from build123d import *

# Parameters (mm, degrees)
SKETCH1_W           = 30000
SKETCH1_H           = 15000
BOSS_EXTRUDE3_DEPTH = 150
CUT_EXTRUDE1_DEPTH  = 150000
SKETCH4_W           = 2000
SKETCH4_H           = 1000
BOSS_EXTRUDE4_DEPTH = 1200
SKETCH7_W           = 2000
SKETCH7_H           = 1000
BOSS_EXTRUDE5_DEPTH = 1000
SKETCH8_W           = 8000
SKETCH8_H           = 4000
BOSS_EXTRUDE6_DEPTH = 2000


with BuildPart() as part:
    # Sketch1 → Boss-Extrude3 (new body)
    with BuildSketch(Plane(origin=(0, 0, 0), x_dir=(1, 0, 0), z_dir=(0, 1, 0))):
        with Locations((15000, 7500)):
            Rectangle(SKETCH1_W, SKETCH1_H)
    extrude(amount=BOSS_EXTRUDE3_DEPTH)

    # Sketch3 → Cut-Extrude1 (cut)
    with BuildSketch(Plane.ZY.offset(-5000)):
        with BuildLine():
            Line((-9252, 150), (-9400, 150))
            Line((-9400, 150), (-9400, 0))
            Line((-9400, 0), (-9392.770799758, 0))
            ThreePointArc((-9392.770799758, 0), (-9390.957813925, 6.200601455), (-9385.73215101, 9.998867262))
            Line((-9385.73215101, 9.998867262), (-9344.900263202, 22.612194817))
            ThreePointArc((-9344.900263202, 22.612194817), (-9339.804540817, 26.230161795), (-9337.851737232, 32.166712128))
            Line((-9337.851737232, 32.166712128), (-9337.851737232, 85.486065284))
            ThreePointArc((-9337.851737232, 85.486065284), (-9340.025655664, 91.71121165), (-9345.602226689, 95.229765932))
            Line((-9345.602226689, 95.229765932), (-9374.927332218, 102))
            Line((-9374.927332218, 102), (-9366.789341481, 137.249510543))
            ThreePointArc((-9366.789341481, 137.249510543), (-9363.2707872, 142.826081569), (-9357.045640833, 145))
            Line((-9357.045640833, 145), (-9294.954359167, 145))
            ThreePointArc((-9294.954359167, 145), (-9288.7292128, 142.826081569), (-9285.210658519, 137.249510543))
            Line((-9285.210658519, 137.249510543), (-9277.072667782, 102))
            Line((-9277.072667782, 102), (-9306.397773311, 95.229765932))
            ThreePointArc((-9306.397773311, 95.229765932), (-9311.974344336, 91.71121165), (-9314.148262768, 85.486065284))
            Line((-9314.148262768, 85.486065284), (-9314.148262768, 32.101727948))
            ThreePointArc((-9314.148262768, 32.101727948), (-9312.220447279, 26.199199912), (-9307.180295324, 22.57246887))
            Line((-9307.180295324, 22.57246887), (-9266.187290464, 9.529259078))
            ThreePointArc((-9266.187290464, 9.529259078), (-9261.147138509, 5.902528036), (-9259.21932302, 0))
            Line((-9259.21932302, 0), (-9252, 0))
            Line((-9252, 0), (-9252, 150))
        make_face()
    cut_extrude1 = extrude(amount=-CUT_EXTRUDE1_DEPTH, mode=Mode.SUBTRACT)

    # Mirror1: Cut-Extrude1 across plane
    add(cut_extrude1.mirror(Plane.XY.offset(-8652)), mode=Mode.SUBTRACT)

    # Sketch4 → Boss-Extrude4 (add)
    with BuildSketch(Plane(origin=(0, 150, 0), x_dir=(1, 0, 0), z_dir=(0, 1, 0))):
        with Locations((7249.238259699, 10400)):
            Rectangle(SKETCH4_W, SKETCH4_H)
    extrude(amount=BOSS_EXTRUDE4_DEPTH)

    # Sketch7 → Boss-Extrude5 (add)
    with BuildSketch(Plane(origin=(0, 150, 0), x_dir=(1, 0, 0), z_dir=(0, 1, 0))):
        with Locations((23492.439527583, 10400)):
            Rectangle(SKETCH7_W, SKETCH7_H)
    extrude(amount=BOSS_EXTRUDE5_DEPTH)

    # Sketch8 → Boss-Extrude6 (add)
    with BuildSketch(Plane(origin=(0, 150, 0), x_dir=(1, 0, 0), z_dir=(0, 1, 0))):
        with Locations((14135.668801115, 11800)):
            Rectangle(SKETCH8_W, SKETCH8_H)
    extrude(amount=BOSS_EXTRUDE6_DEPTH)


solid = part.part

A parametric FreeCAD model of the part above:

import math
import FreeCAD as App
import Part
import Sketcher

V = App.Vector
Q = App.Units.Quantity


def add_polygon(sketch, points):
    """Adds a closed chain of lines whose ends are joined by coincident constraints."""
    first, n = sketch.GeometryCount, len(points)
    for a, b in zip(points, points[1:] + points[:1]):
        sketch.addGeometry(Part.LineSegment(App.Vector(*a, 0), App.Vector(*b, 0)), False)
    for i in range(n):
        sketch.addConstraint(Sketcher.Constraint("Coincident", first + i, 2, first + (i + 1) % n, 1))

doc = App.newDocument("Part")
body = doc.addObject("PartDesign::Body", "Body")

# Sketch on XZ plane
sketch1 = body.newObject("Sketcher::SketchObject", "Sketch")
sketch1.AttachmentSupport = (doc.getObject("XZ_Plane"), [""])
sketch1.MapMode = "FlatFace"
add_polygon(sketch1, [(0, -15000), (0, 0), (30000, 0), (30000, -15000)])  # lines 0-3
sketch1.addConstraint([
    Sketcher.Constraint("Vertical", 0),
    Sketcher.Constraint("Horizontal", 1),
    Sketcher.Constraint("Vertical", 2),
    Sketcher.Constraint("Horizontal", 3),
    Sketcher.Constraint("Coincident", 0, 2, -1, 1),
    Sketcher.Constraint("DistanceX", 1, 1, 1, 2, Q("30000 mm")),
    Sketcher.Constraint("DistanceY", 0, 1, 0, 2, Q("15000 mm")),
])
pad1 = body.newObject("PartDesign::Pad", "Pad")
pad1.Profile = sketch1
pad1.Length = 150
pad1.Reversed = True

# Sketch on YZ plane
sketch2 = body.newObject("Sketcher::SketchObject", "Sketch001")
sketch2.AttachmentSupport = (doc.getObject("YZ_Plane"), [""])
sketch2.MapMode = "FlatFace"
sketch2.AttachmentOffset = App.Placement(V(0, 0, 5000), App.Rotation())
sketch2.addGeometry([
    Part.LineSegment(V(150, -9252, 0), V(150, -9400, 0)),  # 0
    Part.LineSegment(V(150, -9400, 0), V(0, -9400, 0)),  # 1
    Part.LineSegment(V(0, -9400, 0), V(0, -9392.7708, 0)),  # 2
    Part.ArcOfCircle(Part.Circle(V(0.44435, -9382.780677, 0), V(0, 0, 1), 10), math.radians(-92.546776), math.radians(-17.166377)),  # 3
    Part.LineSegment(V(9.998867, -9385.732151, 0), V(22.612195, -9344.900263, 0)),  # 4
    Part.ArcOfCircle(Part.Circle(V(32.166712, -9347.851737, 0), V(0, 0, 1), 10), math.radians(90), math.radians(162.833623)),  # 5
    Part.LineSegment(V(32.166712, -9337.851737, 0), V(85.486065, -9337.851737, 0)),  # 6
    Part.ArcOfCircle(Part.Circle(V(85.486065, -9347.851737, 0), V(0, 0, 1), 10), math.radians(13), math.radians(90)),  # 7
    Part.LineSegment(V(95.229766, -9345.602227, 0), V(102, -9374.927332, 0)),  # 8
    Part.LineSegment(V(102, -9374.927332, 0), V(137.249511, -9366.789341, 0)),  # 9
    Part.ArcOfCircle(Part.Circle(V(135, -9357.045641, 0), V(0, 0, 1), 10), math.radians(-77), math.radians(0)),  # 10
    Part.LineSegment(V(145, -9357.045641, 0), V(145, -9294.954359, 0)),  # 11
    Part.ArcOfCircle(Part.Circle(V(135, -9294.954359, 0), V(0, 0, 1), 10), math.radians(0), math.radians(77)),  # 12
    Part.LineSegment(V(137.249511, -9285.210659, 0), V(102, -9277.072668, 0)),  # 13
    Part.LineSegment(V(102, -9277.072668, 0), V(95.229766, -9306.397773, 0)),  # 14
    Part.ArcOfCircle(Part.Circle(V(85.486065, -9304.148263, 0), V(0, 0, 1), 10), math.radians(-90), math.radians(-13)),  # 15
    Part.LineSegment(V(85.486065, -9314.148263, 0), V(32.101728, -9314.148263, 0)),  # 16
    Part.ArcOfCircle(Part.Circle(V(32.101728, -9304.148263, 0), V(0, 0, 1), 10), math.radians(-162.3499), math.radians(-90)),  # 17
    Part.LineSegment(V(22.572469, -9307.180295, 0), V(9.529259, -9266.18729, 0)),  # 18
    Part.ArcOfCircle(Part.Circle(V(0, -9269.219323, 0), V(0, 0, 1), 10), math.radians(17.6501), math.radians(90)),  # 19
    Part.LineSegment(V(0, -9259.219323, 0), V(0, -9252, 0)),  # 20
    Part.LineSegment(V(0, -9252, 0), V(150, -9252, 0)),  # 21
], False)
sketch2.addConstraint([
    Sketcher.Constraint("Coincident", 0, 2, 1, 1),
    Sketcher.Constraint("Coincident", 1, 2, 2, 1),
    Sketcher.Constraint("Coincident", 2, 2, 3, 1),
    Sketcher.Constraint("Tangent", 3, 2, 4, 1),
    Sketcher.Constraint("Tangent", 4, 2, 5, 2),
    Sketcher.Constraint("Tangent", 5, 1, 6, 1),
    Sketcher.Constraint("Tangent", 6, 2, 7, 2),
    Sketcher.Constraint("Tangent", 7, 1, 8, 1),
    Sketcher.Constraint("Coincident", 8, 2, 9, 1),
    Sketcher.Constraint("Tangent", 9, 2, 10, 1),
    Sketcher.Constraint("Tangent", 10, 2, 11, 1),
    Sketcher.Constraint("Tangent", 11, 2, 12, 1),
    Sketcher.Constraint("Tangent", 12, 2, 13, 1),
    Sketcher.Constraint("Coincident", 13, 2, 14, 1),
    Sketcher.Constraint("Tangent", 14, 2, 15, 2),
    Sketcher.Constraint("Tangent", 15, 1, 16, 1),
    Sketcher.Constraint("Tangent", 16, 2, 17, 2),
    Sketcher.Constraint("Tangent", 17, 1, 18, 1),
    Sketcher.Constraint("Tangent", 18, 2, 19, 1),
    Sketcher.Constraint("Coincident", 19, 2, 20, 1),
    Sketcher.Constraint("Coincident", 20, 2, 21, 1),
    Sketcher.Constraint("Coincident", 21, 2, 0, 1),
    Sketcher.Constraint("Vertical", 0),
    Sketcher.Constraint("Horizontal", 1),
    Sketcher.Constraint("Vertical", 2),
    Sketcher.Constraint("Horizontal", 6),
    Sketcher.Constraint("Vertical", 11),
    Sketcher.Constraint("Horizontal", 16),
    Sketcher.Constraint("Vertical", 20),
    Sketcher.Constraint("Horizontal", 21),
    Sketcher.Constraint("Equal", 3, 5),
    Sketcher.Constraint("Equal", 5, 7),
    Sketcher.Constraint("Equal", 7, 10),
    Sketcher.Constraint("Equal", 10, 12),
    Sketcher.Constraint("Equal", 12, 15),
    Sketcher.Constraint("Equal", 15, 17),
    Sketcher.Constraint("Equal", 17, 19),
    Sketcher.Constraint("PointOnObject", 19, 3, -2),
    Sketcher.Constraint("PointOnObject", 1, 2, -2),
    Sketcher.Constraint("PointOnObject", 19, 2, -2),
    Sketcher.Constraint("Perpendicular", 8, 9),
    Sketcher.Constraint("Perpendicular", 13, 14),
    Sketcher.Constraint("Vertical", 7, 3, 15, 3),
    Sketcher.Constraint("Vertical", 9, 2, 12, 2),
    Sketcher.Constraint("Vertical", 8, 2, 13, 2),
    Sketcher.Constraint("Radius", 3, Q("10 mm")),
    Sketcher.Constraint("DistanceX", 1, 2, 1, 1, Q("150 mm")),
    Sketcher.Constraint("DistanceY", 0, 2, 0, 1, Q("148 mm")),
    Sketcher.Constraint("Angle", 8, Q("-77 deg")),
    Sketcher.Constraint("DistanceX", -1, 1, 10, 3, Q("135 mm")),
    Sketcher.Constraint("DistanceY", 0, 2, -1, 1, Q("9400 mm")),
    Sketcher.Constraint("DistanceX", -1, 1, 8, 2, Q("102 mm")),
    Sketcher.Constraint("DistanceY", 2, 1, 2, 2, Q("7.2292 mm")),
    Sketcher.Constraint("DistanceY", 4, 2, 17, 3, Q("40.752 mm")),
    Sketcher.Constraint("DistanceY", 11, 1, 11, 2, Q("62.091282 mm")),
    Sketcher.Constraint("DistanceX", 3, 2, 7, 3, Q("75.487198 mm")),
    Sketcher.Constraint("Distance", 4, Q("42.735689 mm")),
    Sketcher.Constraint("Distance", 18, Q("43.01804 mm")),
    Sketcher.Constraint("DistanceX", 6, 1, 6, 2, Q("53.319353 mm")),
    Sketcher.Constraint("DistanceX", 16, 2, 16, 1, Q("53.384337 mm")),
])
pocket1 = body.newObject("PartDesign::Pocket", "Pocket")
pocket1.Profile = sketch2
pocket1.Length = 150000
pocket1.Reversed = True
doc.recompute()

datumplane = body.newObject("PartDesign::Plane", "DatumPlane")
datumplane.AttachmentSupport = (doc.getObject("XY_Plane"), [""])
datumplane.MapMode = "FlatFace"
datumplane.AttachmentOffset = App.Placement(V(0, 0, -8652), App.Rotation())
mirrored = body.newObject("PartDesign::Mirrored", "Mirrored")
mirrored.Originals = [pocket1]
mirrored.MirrorPlane = (datumplane, [""])
body.Tip = mirrored

# Sketch on XZ plane
sketch3 = body.newObject("Sketcher::SketchObject", "Sketch002")
sketch3.AttachmentSupport = (doc.getObject("XZ_Plane"), [""])
sketch3.MapMode = "FlatFace"
sketch3.AttachmentOffset = App.Placement(V(0, 0, -150), App.Rotation())
add_polygon(sketch3, [(6249.23826, -10900), (6249.23826, -9900), (8249.23826, -9900), (8249.23826, -10900)])  # lines 0-3
sketch3.addConstraint([
    Sketcher.Constraint("Vertical", 0),
    Sketcher.Constraint("Horizontal", 1),
    Sketcher.Constraint("Vertical", 2),
    Sketcher.Constraint("Horizontal", 3),
    Sketcher.Constraint("DistanceX", 1, 1, 1, 2, Q("2000 mm")),
    Sketcher.Constraint("DistanceY", 0, 1, 0, 2, Q("1000 mm")),
    Sketcher.Constraint("DistanceY", 0, 2, -1, 1, Q("9900 mm")),
    Sketcher.Constraint("DistanceX", -1, 1, 0, 2, Q("6249.23826 mm")),
])
pad2 = body.newObject("PartDesign::Pad", "Pad001")
pad2.Profile = sketch3
pad2.Length = 1200
pad2.Reversed = True

# Sketch on XZ plane
sketch4 = body.newObject("Sketcher::SketchObject", "Sketch003")
sketch4.AttachmentSupport = (doc.getObject("XZ_Plane"), [""])
sketch4.MapMode = "FlatFace"
sketch4.AttachmentOffset = App.Placement(V(0, 0, -150), App.Rotation())
add_polygon(sketch4, [(22492.439528, -10900), (22492.439528, -9900), (24492.439528, -9900), (24492.439528, -10900)])  # lines 0-3
sketch4.addConstraint([
    Sketcher.Constraint("Vertical", 0),
    Sketcher.Constraint("Horizontal", 1),
    Sketcher.Constraint("Vertical", 2),
    Sketcher.Constraint("Horizontal", 3),
    Sketcher.Constraint("DistanceX", 1, 1, 1, 2, Q("2000 mm")),
    Sketcher.Constraint("DistanceY", 0, 1, 0, 2, Q("1000 mm")),
    Sketcher.Constraint("DistanceY", 0, 2, -1, 1, Q("9900 mm")),
    Sketcher.Constraint("DistanceX", -1, 1, 0, 2, Q("22492.439528 mm")),
])
pad3 = body.newObject("PartDesign::Pad", "Pad002")
pad3.Profile = sketch4
pad3.Length = 1000
pad3.Reversed = True

# Sketch on XZ plane
sketch5 = body.newObject("Sketcher::SketchObject", "Sketch004")
sketch5.AttachmentSupport = (doc.getObject("XZ_Plane"), [""])
sketch5.MapMode = "FlatFace"
sketch5.AttachmentOffset = App.Placement(V(0, 0, -150), App.Rotation())
add_polygon(sketch5, [(10135.668801, -13800), (10135.668801, -9800), (18135.668801, -9800), (18135.668801, -13800)])  # lines 0-3
sketch5.addConstraint([
    Sketcher.Constraint("Vertical", 0),
    Sketcher.Constraint("Horizontal", 1),
    Sketcher.Constraint("Vertical", 2),
    Sketcher.Constraint("Horizontal", 3),
    Sketcher.Constraint("DistanceX", 1, 1, 1, 2, Q("8000 mm")),
    Sketcher.Constraint("DistanceY", 0, 1, 0, 2, Q("4000 mm")),
    Sketcher.Constraint("DistanceY", 0, 2, -1, 1, Q("9800 mm")),
    Sketcher.Constraint("DistanceX", -1, 1, 0, 2, Q("10135.668801 mm")),
])
pad4 = body.newObject("PartDesign::Pad", "Pad003")
pad4.Profile = sketch5
pad4.Length = 2000
pad4.Reversed = True

doc.recompute()
